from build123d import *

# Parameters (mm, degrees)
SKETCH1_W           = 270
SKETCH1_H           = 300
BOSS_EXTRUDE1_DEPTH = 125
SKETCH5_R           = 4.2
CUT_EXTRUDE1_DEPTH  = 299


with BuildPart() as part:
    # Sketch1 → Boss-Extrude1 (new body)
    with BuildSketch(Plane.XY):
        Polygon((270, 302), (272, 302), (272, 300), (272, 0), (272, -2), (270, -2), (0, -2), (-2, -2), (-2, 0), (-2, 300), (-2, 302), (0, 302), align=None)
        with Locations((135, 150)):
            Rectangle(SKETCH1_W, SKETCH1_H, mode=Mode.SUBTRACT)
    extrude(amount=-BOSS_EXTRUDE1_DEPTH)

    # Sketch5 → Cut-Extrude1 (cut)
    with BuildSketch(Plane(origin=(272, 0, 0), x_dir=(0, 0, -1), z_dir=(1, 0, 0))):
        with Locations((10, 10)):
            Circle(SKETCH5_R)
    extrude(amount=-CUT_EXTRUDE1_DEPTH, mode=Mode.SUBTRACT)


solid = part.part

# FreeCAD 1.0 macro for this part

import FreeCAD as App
import Part
import Sketcher

doc = App.newDocument("Part")
body = doc.addObject("PartDesign::Body", "Body")

# Sketch on XY plane
sketch1 = body.newObject("Sketcher::SketchObject", "Sketch")
sketch1.AttachmentSupport = (doc.getObject("XY_Plane"), [""])
sketch1.MapMode = "FlatFace"
sketch1.addGeometry(Part.LineSegment(App.Vector(272, 302, 0), App.Vector(-2, 302, 0)), False)
sketch1.addGeometry(Part.LineSegment(App.Vector(-2, 302, 0), App.Vector(-2, -2, 0)), False)
sketch1.addGeometry(Part.LineSegment(App.Vector(-2, -2, 0), App.Vector(272, -2, 0)), False)
sketch1.addGeometry(Part.LineSegment(App.Vector(272, -2, 0), App.Vector(272, 302, 0)), False)
sketch1.addGeometry(Part.LineSegment(App.Vector(0, 0, 0), App.Vector(0, 300, 0)), False)
sketch1.addGeometry(Part.LineSegment(App.Vector(0, 300, 0), App.Vector(270, 300, 0)), False)
sketch1.addGeometry(Part.LineSegment(App.Vector(270, 300, 0), App.Vector(270, 0, 0)), False)
sketch1.addGeometry(Part.LineSegment(App.Vector(270, 0, 0), App.Vector(0, 0, 0)), False)
sketch1.addConstraint(Sketcher.Constraint("Coincident", 0, 2, 1, 1))
sketch1.addConstraint(Sketcher.Constraint("Coincident", 1, 2, 2, 1))
sketch1.addConstraint(Sketcher.Constraint("Coincident", 2, 2, 3, 1))
sketch1.addConstraint(Sketcher.Constraint("Coincident", 3, 2, 0, 1))
sketch1.addConstraint(Sketcher.Constraint("Coincident", 4, 2, 5, 1))
sketch1.addConstraint(Sketcher.Constraint("Coincident", 5, 2, 6, 1))
sketch1.addConstraint(Sketcher.Constraint("Coincident", 6, 2, 7, 1))
sketch1.addConstraint(Sketcher.Constraint("Coincident", 7, 2, 4, 1))
sketch1.addConstraint(Sketcher.Constraint("Horizontal", 0))
sketch1.addConstraint(Sketcher.Constraint("Vertical", 1))
sketch1.addConstraint(Sketcher.Constraint("Horizontal", 2))
sketch1.addConstraint(Sketcher.Constraint("Vertical", 3))
sketch1.addConstraint(Sketcher.Constraint("Vertical", 4))
sketch1.addConstraint(Sketcher.Constraint("Horizontal", 5))
sketch1.addConstraint(Sketcher.Constraint("Vertical", 6))
sketch1.addConstraint(Sketcher.Constraint("Horizontal", 7))
sketch1.addConstraint(Sketcher.Constraint("Coincident", 7, 2, -1, 1))
sketch1.addConstraint(Sketcher.Constraint("DistanceX", 0, 2, 0, 1, 274.0))
sketch1.addConstraint(Sketcher.Constraint("DistanceX", 5, 1, 5, 2, 270.0))
sketch1.addConstraint(Sketcher.Constraint("DistanceY", 1, 2, 1, 1, 304.0))
sketch1.addConstraint(Sketcher.Constraint("DistanceY", 4, 1, 4, 2, 300.0))
sketch1.addConstraint(Sketcher.Constraint("DistanceX", 0, 2, -1, 1, 2.0))
sketch1.addConstraint(Sketcher.Constraint("DistanceY", -1, 1, 0, 2, 302.0))
pad1 = body.newObject("PartDesign::Pad", "Pad")
pad1.Profile = sketch1
pad1.Length = 125
pad1.Reversed = True

# Sketch on YZ plane
sketch2 = body.newObject("Sketcher::SketchObject", "Sketch001")
sketch2.AttachmentSupport = (doc.getObject("YZ_Plane"), [""])
sketch2.MapMode = "FlatFace"
sketch2.AttachmentOffset = App.Placement(App.Vector(0, 0, 272), App.Rotation())
sketch2.addGeometry(Part.Circle(App.Vector(10, -10, 0), App.Vector(0, 0, 1), 4.2), False)
sketch2.addConstraint(Sketcher.Constraint("Diameter", 0, 8.4))
sketch2.addConstraint(Sketcher.Constraint("DistanceX", -1, 1, 0, 3, 10.0))
sketch2.addConstraint(Sketcher.Constraint("DistanceY", 0, 3, -1, 1, 10.0))
pocket1 = body.newObject("PartDesign::Pocket", "Pocket")
pocket1.Profile = sketch2
pocket1.Length = 299

doc.recompute()
